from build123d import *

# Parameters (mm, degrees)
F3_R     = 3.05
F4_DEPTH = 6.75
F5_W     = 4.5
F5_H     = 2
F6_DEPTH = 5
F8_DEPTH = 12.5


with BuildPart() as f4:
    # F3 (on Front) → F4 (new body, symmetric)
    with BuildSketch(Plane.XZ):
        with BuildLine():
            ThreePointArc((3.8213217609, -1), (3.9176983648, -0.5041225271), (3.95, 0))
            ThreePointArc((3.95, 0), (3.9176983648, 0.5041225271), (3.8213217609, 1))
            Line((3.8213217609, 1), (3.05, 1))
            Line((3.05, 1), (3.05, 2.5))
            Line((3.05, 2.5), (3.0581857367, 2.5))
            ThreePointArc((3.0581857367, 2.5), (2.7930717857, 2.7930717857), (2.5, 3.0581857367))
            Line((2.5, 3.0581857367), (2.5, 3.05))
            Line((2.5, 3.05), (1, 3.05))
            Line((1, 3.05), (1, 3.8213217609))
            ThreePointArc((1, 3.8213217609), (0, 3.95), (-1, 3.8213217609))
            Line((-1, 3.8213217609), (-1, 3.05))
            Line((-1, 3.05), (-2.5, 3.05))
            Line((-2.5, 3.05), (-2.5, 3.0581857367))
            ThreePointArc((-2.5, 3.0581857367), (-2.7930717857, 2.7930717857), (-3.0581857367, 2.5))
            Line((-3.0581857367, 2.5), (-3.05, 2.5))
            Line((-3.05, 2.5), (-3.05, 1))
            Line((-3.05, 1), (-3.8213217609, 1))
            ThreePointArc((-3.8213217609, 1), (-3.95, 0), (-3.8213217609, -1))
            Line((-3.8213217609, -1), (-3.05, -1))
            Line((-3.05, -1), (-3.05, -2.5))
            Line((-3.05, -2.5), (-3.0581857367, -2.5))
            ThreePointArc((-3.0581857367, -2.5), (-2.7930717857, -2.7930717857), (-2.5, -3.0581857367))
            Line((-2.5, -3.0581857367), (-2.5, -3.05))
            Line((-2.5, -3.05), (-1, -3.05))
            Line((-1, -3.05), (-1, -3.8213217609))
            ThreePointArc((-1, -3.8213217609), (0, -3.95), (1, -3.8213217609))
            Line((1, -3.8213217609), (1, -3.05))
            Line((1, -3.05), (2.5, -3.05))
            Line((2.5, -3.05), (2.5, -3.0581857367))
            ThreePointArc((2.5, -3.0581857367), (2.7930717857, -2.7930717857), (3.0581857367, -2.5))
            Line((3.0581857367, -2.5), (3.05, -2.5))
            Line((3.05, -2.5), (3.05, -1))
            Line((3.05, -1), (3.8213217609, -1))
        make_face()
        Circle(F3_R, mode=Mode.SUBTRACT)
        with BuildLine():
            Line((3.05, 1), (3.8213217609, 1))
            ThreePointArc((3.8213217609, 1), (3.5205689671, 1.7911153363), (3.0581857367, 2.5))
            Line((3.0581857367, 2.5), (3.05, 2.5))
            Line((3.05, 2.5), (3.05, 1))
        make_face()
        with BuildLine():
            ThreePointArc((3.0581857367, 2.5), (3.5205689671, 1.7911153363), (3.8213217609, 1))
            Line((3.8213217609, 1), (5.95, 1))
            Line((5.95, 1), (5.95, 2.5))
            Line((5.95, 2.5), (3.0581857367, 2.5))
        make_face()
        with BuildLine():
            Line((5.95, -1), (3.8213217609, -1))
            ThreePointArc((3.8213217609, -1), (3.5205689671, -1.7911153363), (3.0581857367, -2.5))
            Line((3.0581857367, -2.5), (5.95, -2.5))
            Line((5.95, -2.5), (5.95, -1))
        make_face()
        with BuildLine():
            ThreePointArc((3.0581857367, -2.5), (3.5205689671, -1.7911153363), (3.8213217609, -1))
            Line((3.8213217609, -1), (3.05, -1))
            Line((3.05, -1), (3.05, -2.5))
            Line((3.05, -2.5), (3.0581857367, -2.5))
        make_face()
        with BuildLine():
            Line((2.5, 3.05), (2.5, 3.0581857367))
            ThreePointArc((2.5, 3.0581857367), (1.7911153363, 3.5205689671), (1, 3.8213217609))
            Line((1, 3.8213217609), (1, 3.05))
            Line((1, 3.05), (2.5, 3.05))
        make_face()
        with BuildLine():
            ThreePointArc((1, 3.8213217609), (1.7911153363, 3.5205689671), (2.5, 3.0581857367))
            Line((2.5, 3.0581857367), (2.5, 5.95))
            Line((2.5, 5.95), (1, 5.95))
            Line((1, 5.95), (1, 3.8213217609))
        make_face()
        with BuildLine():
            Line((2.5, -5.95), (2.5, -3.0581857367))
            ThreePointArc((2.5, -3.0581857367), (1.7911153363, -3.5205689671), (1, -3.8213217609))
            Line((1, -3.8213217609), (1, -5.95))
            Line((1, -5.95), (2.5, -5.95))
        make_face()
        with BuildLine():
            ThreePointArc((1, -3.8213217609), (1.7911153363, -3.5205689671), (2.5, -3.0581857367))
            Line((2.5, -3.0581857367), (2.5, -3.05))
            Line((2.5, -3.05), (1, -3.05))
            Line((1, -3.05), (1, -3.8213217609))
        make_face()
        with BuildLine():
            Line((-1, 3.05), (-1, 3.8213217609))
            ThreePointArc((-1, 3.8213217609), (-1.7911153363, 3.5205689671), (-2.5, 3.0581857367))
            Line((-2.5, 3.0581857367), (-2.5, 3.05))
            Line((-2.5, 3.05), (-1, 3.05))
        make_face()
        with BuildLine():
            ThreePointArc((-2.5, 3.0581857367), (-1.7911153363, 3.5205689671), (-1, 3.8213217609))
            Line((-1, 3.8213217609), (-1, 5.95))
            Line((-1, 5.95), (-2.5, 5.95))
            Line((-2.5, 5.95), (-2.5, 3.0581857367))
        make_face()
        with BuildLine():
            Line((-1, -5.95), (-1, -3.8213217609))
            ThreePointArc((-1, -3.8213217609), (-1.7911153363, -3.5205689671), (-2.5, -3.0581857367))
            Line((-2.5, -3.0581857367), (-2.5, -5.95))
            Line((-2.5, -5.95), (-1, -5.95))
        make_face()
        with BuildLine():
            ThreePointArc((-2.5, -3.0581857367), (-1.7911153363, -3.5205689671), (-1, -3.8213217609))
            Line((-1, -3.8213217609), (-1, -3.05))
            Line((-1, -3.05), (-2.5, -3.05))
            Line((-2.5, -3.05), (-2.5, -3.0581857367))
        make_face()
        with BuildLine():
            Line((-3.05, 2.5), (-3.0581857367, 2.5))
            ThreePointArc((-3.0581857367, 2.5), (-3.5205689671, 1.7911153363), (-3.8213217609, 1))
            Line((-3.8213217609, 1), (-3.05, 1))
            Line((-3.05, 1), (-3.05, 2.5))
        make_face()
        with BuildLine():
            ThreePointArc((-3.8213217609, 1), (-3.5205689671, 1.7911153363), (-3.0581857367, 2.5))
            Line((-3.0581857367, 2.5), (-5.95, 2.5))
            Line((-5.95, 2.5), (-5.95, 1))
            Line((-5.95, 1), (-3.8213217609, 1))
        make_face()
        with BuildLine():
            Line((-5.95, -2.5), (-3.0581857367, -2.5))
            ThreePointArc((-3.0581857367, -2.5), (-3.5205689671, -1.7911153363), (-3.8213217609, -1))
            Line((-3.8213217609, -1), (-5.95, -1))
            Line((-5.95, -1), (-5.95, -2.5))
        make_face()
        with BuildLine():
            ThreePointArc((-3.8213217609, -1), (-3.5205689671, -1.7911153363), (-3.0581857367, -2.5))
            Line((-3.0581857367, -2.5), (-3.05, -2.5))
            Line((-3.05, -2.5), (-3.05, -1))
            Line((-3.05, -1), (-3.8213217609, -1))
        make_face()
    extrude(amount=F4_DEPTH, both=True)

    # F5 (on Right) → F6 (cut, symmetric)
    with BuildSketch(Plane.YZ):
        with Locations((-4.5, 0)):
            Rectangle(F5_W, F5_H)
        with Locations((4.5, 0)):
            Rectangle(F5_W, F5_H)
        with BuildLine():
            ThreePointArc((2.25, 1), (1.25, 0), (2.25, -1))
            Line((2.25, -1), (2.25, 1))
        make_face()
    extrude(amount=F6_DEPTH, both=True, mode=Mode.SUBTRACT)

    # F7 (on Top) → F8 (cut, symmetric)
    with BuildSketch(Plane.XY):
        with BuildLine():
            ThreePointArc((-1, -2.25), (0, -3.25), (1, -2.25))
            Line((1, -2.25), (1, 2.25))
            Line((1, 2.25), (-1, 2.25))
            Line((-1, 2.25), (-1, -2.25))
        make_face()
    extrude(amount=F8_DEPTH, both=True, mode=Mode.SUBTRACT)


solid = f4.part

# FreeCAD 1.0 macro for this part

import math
import FreeCAD as App
import Part
import Sketcher


def add_polygon(sketch, points):
    """Adds a closed chain of lines whose ends are joined by coincident constraints."""
    first, n = sketch.GeometryCount, len(points)
    for a, b in zip(points, points[1:] + points[:1]):
        sketch.addGeometry(Part.LineSegment(App.Vector(*a, 0), App.Vector(*b, 0)), False)
    for i in range(n):
        sketch.addConstraint(Sketcher.Constraint("Coincident", first + i, 2, first + (i + 1) % n, 1))

doc = App.newDocument("Part")
body = doc.addObject("PartDesign::Body", "Body")

sketch1 = doc.addObject("Sketcher::SketchObject", "Sketch")
body.addObject(sketch1)
sketch1.AttachmentSupport = (doc.XZ_Plane, [""])
sketch1.MapMode = "FlatFace"
sketch1.addGeometry([
    Part.ArcOfCircle(Part.Circle(App.Vector(0, 0, 0), App.Vector(0, 0, 1), 4), math.radians(-14.66), math.radians(0)),
    Part.ArcOfCircle(Part.Circle(App.Vector(0, 0, 0), App.Vector(0, 0, 1), 4), math.radians(0), math.radians(14.66)),
    Part.LineSegment(App.Vector(3.8, 1, 0), App.Vector(6, 1, 0)),
    Part.LineSegment(App.Vector(6, 1, 0), App.Vector(6, 2.5, 0)),
    Part.LineSegment(App.Vector(6, 2.5, 0), App.Vector(3.1, 2.5, 0)),
    Part.ArcOfCircle(Part.Circle(App.Vector(0, 0, 0), App.Vector(0, 0, 1), 4), math.radians(39.27), math.radians(50.73)),
    Part.LineSegment(App.Vector(2.5, 3.1, 0), App.Vector(2.5, 6, 0)),
    Part.LineSegment(App.Vector(2.5, 6, 0), App.Vector(1, 6, 0)),
    Part.LineSegment(App.Vector(1, 6, 0), App.Vector(1, 3.8, 0)),
    Part.ArcOfCircle(Part.Circle(App.Vector(0, 0, 0), App.Vector(0, 0, 1), 4), math.radians(75), math.radians(105)),
    Part.LineSegment(App.Vector(-1, 3.8, 0), App.Vector(-1, 6, 0)),
    Part.LineSegment(App.Vector(-1, 6, 0), App.Vector(-2.5, 6, 0)),
    Part.LineSegment(App.Vector(-2.5, 6, 0), App.Vector(-2.5, 3.1, 0)),
    Part.ArcOfCircle(Part.Circle(App.Vector(0, 0, 0), App.Vector(0, 0, 1), 4), math.radians(129.27), math.radians(140.73)),
    Part.LineSegment(App.Vector(-3.1, 2.5, 0), App.Vector(-6, 2.5, 0)),
    Part.LineSegment(App.Vector(-6, 2.5, 0), App.Vector(-6, 1, 0)),
    Part.LineSegment(App.Vector(-6, 1, 0), App.Vector(-3.8, 1, 0)),
    Part.ArcOfCircle(Part.Circle(App.Vector(0, 0, 0), App.Vector(0, 0, 1), 4), math.radians(165), math.radians(195)),
    Part.LineSegment(App.Vector(-3.8, -1, 0), App.Vector(-6, -1, 0)),
    Part.LineSegment(App.Vector(-6, -1, 0), App.Vector(-6, -2.5, 0)),
    Part.LineSegment(App.Vector(-6, -2.5, 0), App.Vector(-3.1, -2.5, 0)),
    Part.ArcOfCircle(Part.Circle(App.Vector(0, 0, 0), App.Vector(0, 0, 1), 4), math.radians(-140.73), math.radians(-129.27)),
    Part.LineSegment(App.Vector(-2.5, -3.1, 0), App.Vector(-2.5, -6, 0)),
    Part.LineSegment(App.Vector(-2.5, -6, 0), App.Vector(-1, -6, 0)),
    Part.LineSegment(App.Vector(-1, -6, 0), App.Vector(-1, -3.8, 0)),
    Part.ArcOfCircle(Part.Circle(App.Vector(0, 0, 0), App.Vector(0, 0, 1), 4), math.radians(-105), math.radians(-75)),
    Part.LineSegment(App.Vector(1, -3.8, 0), App.Vector(1, -6, 0)),
    Part.LineSegment(App.Vector(1, -6, 0), App.Vector(2.5, -6, 0)),
    Part.LineSegment(App.Vector(2.5, -6, 0), App.Vector(2.5, -3.1, 0)),
    Part.ArcOfCircle(Part.Circle(App.Vector(0, 0, 0), App.Vector(0, 0, 1), 4), math.radians(-50.73), math.radians(-39.27)),
    Part.LineSegment(App.Vector(3.1, -2.5, 0), App.Vector(6, -2.5, 0)),
    Part.LineSegment(App.Vector(6, -2.5, 0), App.Vector(6, -1, 0)),
    Part.LineSegment(App.Vector(6, -1, 0), App.Vector(3.8, -1, 0)),
    Part.Circle(App.Vector(0, 0, 0), App.Vector(0, 0, 1), 3),
], False)
sketch1.addConstraint([
    Sketcher.Constraint("Tangent", 0, 2, 1, 1),
    Sketcher.Constraint("Coincident", 1, 2, 2, 1),
    Sketcher.Constraint("Coincident", 2, 2, 3, 1),
    Sketcher.Constraint("Coincident", 3, 2, 4, 1),
    Sketcher.Constraint("Coincident", 4, 2, 5, 1),
    Sketcher.Constraint("Coincident", 5, 2, 6, 1),
    Sketcher.Constraint("Coincident", 6, 2, 7, 1),
    Sketcher.Constraint("Coincident", 7, 2, 8, 1),
    Sketcher.Constraint("Coincident", 8, 2, 9, 1),
    Sketcher.Constraint("Coincident", 9, 2, 10, 1),
    Sketcher.Constraint("Coincident", 10, 2, 11, 1),
    Sketcher.Constraint("Coincident", 11, 2, 12, 1),
    Sketcher.Constraint("Coincident", 12, 2, 13, 1),
    Sketcher.Constraint("Coincident", 13, 2, 14, 1),
    Sketcher.Constraint("Coincident", 14, 2, 15, 1),
    Sketcher.Constraint("Coincident", 15, 2, 16, 1),
    Sketcher.Constraint("Coincident", 16, 2, 17, 1),
    Sketcher.Constraint("Coincident", 17, 2, 18, 1),
    Sketcher.Constraint("Coincident", 18, 2, 19, 1),
    Sketcher.Constraint("Coincident", 19, 2, 20, 1),
    Sketcher.Constraint("Coincident", 20, 2, 21, 1),
    Sketcher.Constraint("Coincident", 21, 2, 22, 1),
    Sketcher.Constraint("Coincident", 22, 2, 23, 1),
    Sketcher.Constraint("Coincident", 23, 2, 24, 1),
    Sketcher.Constraint("Coincident", 24, 2, 25, 1),
    Sketcher.Constraint("Coincident", 25, 2, 26, 1),
    Sketcher.Constraint("Coincident", 26, 2, 27, 1),
    Sketcher.Constraint("Coincident", 27, 2, 28, 1),
    Sketcher.Constraint("Coincident", 28, 2, 29, 1),
    Sketcher.Constraint("Coincident", 29, 2, 30, 1),
    Sketcher.Constraint("Coincident", 30, 2, 31, 1),
    Sketcher.Constraint("Coincident", 31, 2, 32, 1),
    Sketcher.Constraint("Coincident", 32, 2, 0, 1),
    Sketcher.Constraint("Horizontal", 2),
    Sketcher.Constraint("Vertical", 3),
    Sketcher.Constraint("Horizontal", 4),
    Sketcher.Constraint("Vertical", 6),
    Sketcher.Constraint("Horizontal", 7),
    Sketcher.Constraint("Vertical", 8),
    Sketcher.Constraint("Vertical", 10),
    Sketcher.Constraint("Horizontal", 11),
    Sketcher.Constraint("Vertical", 12),
    Sketcher.Constraint("Horizontal", 14),
    Sketcher.Constraint("Vertical", 15),
    Sketcher.Constraint("Horizontal", 16),
    Sketcher.Constraint("Horizontal", 18),
    Sketcher.Constraint("Vertical", 19),
    Sketcher.Constraint("Horizontal", 20),
    Sketcher.Constraint("Vertical", 22),
    Sketcher.Constraint("Horizontal", 23),
    Sketcher.Constraint("Vertical", 24),
    Sketcher.Constraint("Vertical", 26),
    Sketcher.Constraint("Horizontal", 27),
    Sketcher.Constraint("Vertical", 28),
    Sketcher.Constraint("Horizontal", 30),
    Sketcher.Constraint("Vertical", 31),
    Sketcher.Constraint("Horizontal", 32),
    Sketcher.Constraint("Coincident", 0, 3, -1, 1),
    Sketcher.Constraint("Coincident", 5, 3, -1, 1),
    Sketcher.Constraint("Coincident", 9, 3, -1, 1),
    Sketcher.Constraint("Coincident", 13, 3, -1, 1),
    Sketcher.Constraint("Coincident", 17, 3, -1, 1),
    Sketcher.Constraint("Coincident", 21, 3, -1, 1),
    Sketcher.Constraint("Coincident", 25, 3, -1, 1),
    Sketcher.Constraint("Coincident", 29, 3, -1, 1),
    Sketcher.Constraint("Coincident", 33, 3, -1, 1),
    Sketcher.Constraint("Equal", 0, 1),
    Sketcher.Constraint("Equal", 1, 5),
    Sketcher.Constraint("Equal", 5, 9),
    Sketcher.Constraint("Equal", 9, 13),
    Sketcher.Constraint("Equal", 13, 17),
    Sketcher.Constraint("Equal", 17, 21),
    Sketcher.Constraint("Equal", 21, 25),
    Sketcher.Constraint("Equal", 25, 29),
    Sketcher.Constraint("Symmetric", 2, 2, 18, 2, -1, 1),
    Sketcher.Constraint("Symmetric", 6, 2, 22, 2, -1, 1),
    Sketcher.Constraint("Symmetric", 10, 2, 26, 2, -1, 1),
    Sketcher.Constraint("Symmetric", 14, 2, 30, 2, -1, 1),
    Sketcher.Constraint("Symmetric", 7, 2, 10, 2, -2),
    Sketcher.Constraint("Symmetric", 3, 2, 14, 2, -2),
    Sketcher.Constraint("PointOnObject", 0, 2, -1),
    Sketcher.Constraint("Horizontal", 5, 2, 12, 2),
    Sketcher.Constraint("Horizontal", 2, 2, 15, 2),
    Sketcher.Constraint("Horizontal", 24, 2, 25, 2),
    Sketcher.Constraint("Horizontal", 21, 2, 28, 2),
    Sketcher.Constraint("Horizontal", 20, 2, 29, 2),
    Sketcher.Constraint("Horizontal", 18, 2, 31, 2),
    Sketcher.Constraint("Equal", 27, 3),
    Sketcher.Constraint("Equal", 30, 6),
    Sketcher.Constraint("Equal", 32, 8),
    Sketcher.Constraint("Diameter", 33, 6.1),
    Sketcher.Constraint("Radius", 0, 3.95),
    Sketcher.Constraint("DistanceX", 7, 2, 7, 1, 1.5),
    Sketcher.Constraint("DistanceY", -1, 1, 1, 2, 1.0),
    Sketcher.Constraint("DistanceX", 0, 2, 2, 2, 2.0),
])
pad1 = doc.addObject("PartDesign::Pad", "Pad")
body.addObject(pad1)
pad1.Profile = sketch1
pad1.Length = 13.5
pad1.Midplane = True

sketch2 = doc.addObject("Sketcher::SketchObject", "Sketch001")
body.addObject(sketch2)
sketch2.AttachmentSupport = (doc.YZ_Plane, [""])
sketch2.MapMode = "FlatFace"
add_polygon(sketch2, [(-6.8, 1), (-6.8, -1), (-2.2, -1), (-2.2, 1)])
sketch2.addGeometry(Part.LineSegment(App.Vector(2.2, -1, 0), App.Vector(6.8, -1, 0)), False)
sketch2.addGeometry(Part.LineSegment(App.Vector(6.8, -1, 0), App.Vector(6.8, 1, 0)), False)
sketch2.addGeometry(Part.LineSegment(App.Vector(6.8, 1, 0), App.Vector(2.2, 1, 0)), False)
sketch2.addGeometry(Part.ArcOfCircle(Part.Circle(App.Vector(2.2, 0, 0), App.Vector(0, 0, 1), 1), math.radians(90), math.radians(270)), False)
sketch2.addConstraint([
    Sketcher.Constraint("Coincident", 4, 2, 5, 1),
    Sketcher.Constraint("Coincident", 5, 2, 6, 1),
    Sketcher.Constraint("Tangent", 6, 2, 7, 1),
    Sketcher.Constraint("Tangent", 7, 2, 4, 1),
    Sketcher.Constraint("Vertical", 0),
    Sketcher.Constraint("Horizontal", 1),
    Sketcher.Constraint("Vertical", 2),
    Sketcher.Constraint("Horizontal", 3),
    Sketcher.Constraint("Horizontal", 4),
    Sketcher.Constraint("Vertical", 5),
    Sketcher.Constraint("Horizontal", 6),
    Sketcher.Constraint("Symmetric", 3, 2, 4, 2, -1, 1),
    Sketcher.Constraint("Symmetric", 1, 2, 6, 2, -1, 1),
    Sketcher.Constraint("PointOnObject", 7, 3, -1),
    Sketcher.Constraint("Radius", 7, 1.0),
    Sketcher.Constraint("DistanceX", 1, 1, 1, 2, 4.5),
    Sketcher.Constraint("DistanceX", 0, 2, 7, 3, 9.0),
])
pocket1 = doc.addObject("PartDesign::Pocket", "Pocket")
body.addObject(pocket1)
pocket1.Profile = sketch2
pocket1.Length = 10
pocket1.Midplane = True

sketch3 = doc.addObject("Sketcher::SketchObject", "Sketch002")
body.addObject(sketch3)
sketch3.AttachmentSupport = (doc.XY_Plane, [""])
sketch3.MapMode = "FlatFace"
sketch3.addGeometry([
    Part.ArcOfCircle(Part.Circle(App.Vector(0, -2.2, 0), App.Vector(0, 0, 1), 1), math.radians(180), math.radians(360)),
    Part.LineSegment(App.Vector(1, -2.2, 0), App.Vector(1, 2.2, 0)),
    Part.LineSegment(App.Vector(1, 2.2, 0), App.Vector(-1, 2.2, 0)),
    Part.LineSegment(App.Vector(-1, 2.2, 0), App.Vector(-1, -2.2, 0)),
], False)
sketch3.addConstraint([
    Sketcher.Constraint("Tangent", 0, 2, 1, 1),
    Sketcher.Constraint("Coincident", 1, 2, 2, 1),
    Sketcher.Constraint("Coincident", 2, 2, 3, 1),
    Sketcher.Constraint("Tangent", 3, 2, 0, 1),
    Sketcher.Constraint("Vertical", 1),
    Sketcher.Constraint("Horizontal", 2),
    Sketcher.Constraint("Vertical", 3),
    Sketcher.Constraint("Symmetric", 0, 2, 2, 2, -1, 1),
    Sketcher.Constraint("Radius", 0, 1.0),
    Sketcher.Constraint("DistanceY", 1, 1, 1, 2, 4.5),
])
pocket2 = doc.addObject("PartDesign::Pocket", "Pocket001")
body.addObject(pocket2)
pocket2.Profile = sketch3
pocket2.Length = 25
pocket2.Midplane = True

doc.recompute()
